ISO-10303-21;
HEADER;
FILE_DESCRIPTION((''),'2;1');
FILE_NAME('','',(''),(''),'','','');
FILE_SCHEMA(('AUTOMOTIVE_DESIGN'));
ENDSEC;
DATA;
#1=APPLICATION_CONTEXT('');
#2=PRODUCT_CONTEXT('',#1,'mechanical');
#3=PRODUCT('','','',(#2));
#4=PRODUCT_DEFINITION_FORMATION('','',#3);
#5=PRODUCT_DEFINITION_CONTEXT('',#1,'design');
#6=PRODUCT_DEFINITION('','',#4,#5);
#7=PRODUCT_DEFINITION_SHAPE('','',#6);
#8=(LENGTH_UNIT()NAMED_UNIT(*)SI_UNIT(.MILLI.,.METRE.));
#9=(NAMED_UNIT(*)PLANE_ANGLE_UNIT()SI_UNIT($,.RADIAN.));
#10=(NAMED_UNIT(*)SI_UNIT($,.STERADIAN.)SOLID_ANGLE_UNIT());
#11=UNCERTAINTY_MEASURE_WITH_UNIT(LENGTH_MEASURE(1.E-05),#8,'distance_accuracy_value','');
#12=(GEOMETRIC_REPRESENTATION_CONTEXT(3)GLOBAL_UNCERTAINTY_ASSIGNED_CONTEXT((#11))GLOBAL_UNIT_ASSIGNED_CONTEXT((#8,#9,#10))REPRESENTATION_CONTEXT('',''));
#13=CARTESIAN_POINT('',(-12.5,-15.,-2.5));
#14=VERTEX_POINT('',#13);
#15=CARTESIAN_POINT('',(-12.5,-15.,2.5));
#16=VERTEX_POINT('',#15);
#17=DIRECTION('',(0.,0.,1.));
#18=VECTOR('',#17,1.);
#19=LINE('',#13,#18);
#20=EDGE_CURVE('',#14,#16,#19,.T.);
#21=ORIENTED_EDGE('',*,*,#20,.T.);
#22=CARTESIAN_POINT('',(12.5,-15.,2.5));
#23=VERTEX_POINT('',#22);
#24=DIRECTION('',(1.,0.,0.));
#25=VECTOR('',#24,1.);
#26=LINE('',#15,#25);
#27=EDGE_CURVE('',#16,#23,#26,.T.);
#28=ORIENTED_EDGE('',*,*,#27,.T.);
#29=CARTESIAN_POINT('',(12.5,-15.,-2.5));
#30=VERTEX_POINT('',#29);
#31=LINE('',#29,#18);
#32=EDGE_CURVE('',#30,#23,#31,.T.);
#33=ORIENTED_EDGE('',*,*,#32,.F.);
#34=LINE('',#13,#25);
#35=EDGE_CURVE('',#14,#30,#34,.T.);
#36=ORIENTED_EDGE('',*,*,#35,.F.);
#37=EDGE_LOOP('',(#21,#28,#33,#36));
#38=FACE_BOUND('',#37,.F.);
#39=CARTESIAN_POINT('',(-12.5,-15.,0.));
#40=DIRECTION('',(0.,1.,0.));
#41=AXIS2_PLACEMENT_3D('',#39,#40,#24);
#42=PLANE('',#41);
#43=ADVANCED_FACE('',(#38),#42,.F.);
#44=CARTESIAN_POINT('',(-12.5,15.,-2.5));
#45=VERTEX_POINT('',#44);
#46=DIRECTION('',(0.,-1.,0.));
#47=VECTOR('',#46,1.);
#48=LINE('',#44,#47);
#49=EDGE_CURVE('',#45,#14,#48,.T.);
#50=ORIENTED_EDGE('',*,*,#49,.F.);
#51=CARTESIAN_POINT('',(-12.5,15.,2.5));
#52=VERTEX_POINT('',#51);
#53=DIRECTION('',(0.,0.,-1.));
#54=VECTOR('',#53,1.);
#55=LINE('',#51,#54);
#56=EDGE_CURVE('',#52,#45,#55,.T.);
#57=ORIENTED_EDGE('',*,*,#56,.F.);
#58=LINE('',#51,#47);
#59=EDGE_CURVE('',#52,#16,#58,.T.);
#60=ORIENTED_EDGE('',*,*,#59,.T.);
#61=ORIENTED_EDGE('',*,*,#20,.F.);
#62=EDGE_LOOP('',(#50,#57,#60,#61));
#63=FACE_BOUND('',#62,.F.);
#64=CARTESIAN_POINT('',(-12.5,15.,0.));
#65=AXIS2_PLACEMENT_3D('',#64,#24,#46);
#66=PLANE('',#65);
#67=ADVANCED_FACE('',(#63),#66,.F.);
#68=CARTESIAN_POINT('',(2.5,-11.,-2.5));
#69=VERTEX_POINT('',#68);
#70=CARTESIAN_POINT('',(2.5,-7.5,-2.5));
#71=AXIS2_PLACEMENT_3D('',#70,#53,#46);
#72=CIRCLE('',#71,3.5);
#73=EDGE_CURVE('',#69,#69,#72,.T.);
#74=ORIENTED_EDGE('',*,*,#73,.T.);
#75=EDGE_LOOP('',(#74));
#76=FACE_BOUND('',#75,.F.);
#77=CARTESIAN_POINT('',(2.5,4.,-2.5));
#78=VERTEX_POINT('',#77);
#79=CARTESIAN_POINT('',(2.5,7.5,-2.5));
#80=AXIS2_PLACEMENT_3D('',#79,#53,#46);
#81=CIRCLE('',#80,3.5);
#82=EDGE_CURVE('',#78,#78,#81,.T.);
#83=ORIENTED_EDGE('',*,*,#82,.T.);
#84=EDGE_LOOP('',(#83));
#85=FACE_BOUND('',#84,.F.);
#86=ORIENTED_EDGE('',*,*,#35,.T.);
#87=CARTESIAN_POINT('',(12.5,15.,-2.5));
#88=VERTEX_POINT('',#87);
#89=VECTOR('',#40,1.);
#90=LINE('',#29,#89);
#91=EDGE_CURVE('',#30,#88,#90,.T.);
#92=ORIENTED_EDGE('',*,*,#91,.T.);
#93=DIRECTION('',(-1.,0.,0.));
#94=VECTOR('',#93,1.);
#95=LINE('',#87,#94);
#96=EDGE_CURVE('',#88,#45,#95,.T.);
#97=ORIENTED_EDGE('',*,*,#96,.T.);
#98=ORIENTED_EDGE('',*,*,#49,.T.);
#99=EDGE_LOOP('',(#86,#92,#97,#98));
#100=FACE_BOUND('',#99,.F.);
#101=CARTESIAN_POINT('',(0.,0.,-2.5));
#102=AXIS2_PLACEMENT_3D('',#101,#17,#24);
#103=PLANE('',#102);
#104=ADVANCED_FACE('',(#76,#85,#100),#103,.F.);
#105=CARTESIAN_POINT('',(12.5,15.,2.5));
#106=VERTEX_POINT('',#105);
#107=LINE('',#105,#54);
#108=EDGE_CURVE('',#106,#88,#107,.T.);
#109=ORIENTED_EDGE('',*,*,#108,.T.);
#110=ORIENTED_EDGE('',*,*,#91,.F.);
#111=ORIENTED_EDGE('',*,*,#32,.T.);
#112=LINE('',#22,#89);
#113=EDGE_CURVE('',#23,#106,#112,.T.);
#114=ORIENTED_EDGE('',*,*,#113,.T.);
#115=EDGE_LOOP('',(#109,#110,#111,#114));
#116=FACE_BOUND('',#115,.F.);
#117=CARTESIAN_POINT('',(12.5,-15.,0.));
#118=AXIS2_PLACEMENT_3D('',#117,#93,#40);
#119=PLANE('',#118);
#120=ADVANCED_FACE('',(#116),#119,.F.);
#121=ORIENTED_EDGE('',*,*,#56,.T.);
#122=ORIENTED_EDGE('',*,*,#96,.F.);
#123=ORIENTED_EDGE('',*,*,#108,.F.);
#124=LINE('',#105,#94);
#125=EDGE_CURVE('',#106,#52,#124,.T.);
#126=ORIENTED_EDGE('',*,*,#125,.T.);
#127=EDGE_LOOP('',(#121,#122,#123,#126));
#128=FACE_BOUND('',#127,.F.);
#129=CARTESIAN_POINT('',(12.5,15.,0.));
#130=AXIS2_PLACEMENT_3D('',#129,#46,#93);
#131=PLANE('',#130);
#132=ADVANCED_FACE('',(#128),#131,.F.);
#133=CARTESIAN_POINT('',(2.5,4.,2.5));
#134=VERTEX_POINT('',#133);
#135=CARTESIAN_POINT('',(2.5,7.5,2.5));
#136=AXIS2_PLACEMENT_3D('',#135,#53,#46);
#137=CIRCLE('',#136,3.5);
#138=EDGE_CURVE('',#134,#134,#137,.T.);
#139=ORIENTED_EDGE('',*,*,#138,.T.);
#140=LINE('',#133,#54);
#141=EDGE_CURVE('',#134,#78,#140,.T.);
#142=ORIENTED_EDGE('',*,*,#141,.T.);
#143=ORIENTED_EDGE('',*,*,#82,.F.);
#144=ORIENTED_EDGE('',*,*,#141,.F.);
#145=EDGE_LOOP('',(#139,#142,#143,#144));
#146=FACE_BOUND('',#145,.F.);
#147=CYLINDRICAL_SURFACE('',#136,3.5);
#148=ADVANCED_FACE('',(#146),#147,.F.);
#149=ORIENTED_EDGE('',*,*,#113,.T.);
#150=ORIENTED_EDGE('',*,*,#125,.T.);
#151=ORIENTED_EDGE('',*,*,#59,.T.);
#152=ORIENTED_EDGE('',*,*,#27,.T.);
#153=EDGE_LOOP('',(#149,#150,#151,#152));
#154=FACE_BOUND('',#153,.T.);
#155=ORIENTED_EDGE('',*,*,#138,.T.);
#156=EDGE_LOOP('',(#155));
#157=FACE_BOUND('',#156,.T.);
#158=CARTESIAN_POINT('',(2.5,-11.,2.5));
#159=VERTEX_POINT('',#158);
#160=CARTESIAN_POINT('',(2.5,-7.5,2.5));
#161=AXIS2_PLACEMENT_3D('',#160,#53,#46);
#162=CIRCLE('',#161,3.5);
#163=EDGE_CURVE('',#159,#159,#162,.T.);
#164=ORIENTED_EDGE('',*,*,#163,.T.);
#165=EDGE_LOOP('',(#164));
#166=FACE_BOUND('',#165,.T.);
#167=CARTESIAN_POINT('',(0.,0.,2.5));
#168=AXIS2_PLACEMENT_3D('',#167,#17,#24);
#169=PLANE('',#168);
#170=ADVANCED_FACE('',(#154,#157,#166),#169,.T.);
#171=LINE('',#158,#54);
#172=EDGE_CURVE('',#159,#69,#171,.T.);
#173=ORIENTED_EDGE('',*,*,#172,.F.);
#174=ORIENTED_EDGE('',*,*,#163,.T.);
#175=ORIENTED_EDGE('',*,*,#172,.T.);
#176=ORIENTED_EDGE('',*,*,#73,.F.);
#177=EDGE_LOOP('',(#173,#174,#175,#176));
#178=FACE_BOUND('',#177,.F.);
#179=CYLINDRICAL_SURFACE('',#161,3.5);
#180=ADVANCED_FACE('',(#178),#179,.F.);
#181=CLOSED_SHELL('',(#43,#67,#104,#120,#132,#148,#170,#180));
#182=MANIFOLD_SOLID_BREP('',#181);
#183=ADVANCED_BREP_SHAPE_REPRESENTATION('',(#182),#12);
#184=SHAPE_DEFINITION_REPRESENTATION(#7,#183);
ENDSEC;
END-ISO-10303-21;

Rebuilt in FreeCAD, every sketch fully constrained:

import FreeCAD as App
import Part
import Sketcher
Q = App.Units.Quantity

doc = App.newDocument("Part")
body = doc.addObject("PartDesign::Body", "Body")

sketch1 = body.newObject("Sketcher::SketchObject", "Sketch")
sketch1.AttachmentSupport = (doc.getObject("XY_Plane"), [""])
sketch1.MapMode = "FlatFace"
sketch1.addGeometry([
    Part.LineSegment(App.Vector(-12.5, 15, 0), App.Vector(-12.5, -15, 0)),
    Part.LineSegment(App.Vector(-12.5, -15, 0), App.Vector(12.5, -15, 0)),
    Part.LineSegment(App.Vector(12.5, -15, 0), App.Vector(12.5, 15, 0)),
    Part.LineSegment(App.Vector(12.5, 15, 0), App.Vector(-12.5, 15, 0)),
], False)
sketch1.addConstraint([
    Sketcher.Constraint("Coincident", 0, 2, 1, 1),
    Sketcher.Constraint("Coincident", 1, 2, 2, 1),
    Sketcher.Constraint("Coincident", 2, 2, 3, 1),
    Sketcher.Constraint("Coincident", 3, 2, 0, 1),
    Sketcher.Constraint("Vertical", 0),
    Sketcher.Constraint("Horizontal", 1),
    Sketcher.Constraint("Vertical", 2),
    Sketcher.Constraint("Horizontal", 3),
    Sketcher.Constraint("Symmetric", 0, 2, 2, 2, -1, 1),
    Sketcher.Constraint("DistanceX", 1, 1, 1, 2, Q("25 mm")),
    Sketcher.Constraint("DistanceY", 0, 2, 0, 1, Q("30 mm")),
])
pad1 = body.newObject("PartDesign::Pad", "Pad")
pad1.Profile = sketch1
pad1.Length = 5
pad1.Midplane = True

sketch2 = body.newObject("Sketcher::SketchObject", "Sketch001")
sketch2.AttachmentSupport = (doc.getObject("XY_Plane"), [""])
sketch2.MapMode = "FlatFace"
sketch2.AttachmentOffset = App.Placement(App.Vector(0, 0, 2.5), App.Rotation())
sketch2.addGeometry([
    Part.Circle(App.Vector(2.5, 7.5, 0), App.Vector(0, 0, 1), 3.5),
    Part.Circle(App.Vector(2.5, -7.5, 0), App.Vector(0, 0, 1), 3.5),
], False)
sketch2.addConstraint([
    Sketcher.Constraint("Equal", 0, 1),
    Sketcher.Constraint("Symmetric", 0, 3, 1, 3, -1),
    Sketcher.Constraint("Diameter", 0, Q("7 mm")),
    Sketcher.Constraint("DistanceY", 1, 3, 0, 3, Q("15 mm")),
    Sketcher.Constraint("DistanceX", -1, 1, 0, 3, Q("2.5 mm")),
])
doc.recompute()
hole = body.newObject("PartDesign::Hole", "Hole")
hole.Profile = sketch2
hole.ThreadType = "None"
hole.Diameter = 7
hole.DepthType = "Dimension"
hole.Depth = 14.2
hole.DrillPoint = "Angled"
hole.DrillPointAngle = 118

doc.recompute()
